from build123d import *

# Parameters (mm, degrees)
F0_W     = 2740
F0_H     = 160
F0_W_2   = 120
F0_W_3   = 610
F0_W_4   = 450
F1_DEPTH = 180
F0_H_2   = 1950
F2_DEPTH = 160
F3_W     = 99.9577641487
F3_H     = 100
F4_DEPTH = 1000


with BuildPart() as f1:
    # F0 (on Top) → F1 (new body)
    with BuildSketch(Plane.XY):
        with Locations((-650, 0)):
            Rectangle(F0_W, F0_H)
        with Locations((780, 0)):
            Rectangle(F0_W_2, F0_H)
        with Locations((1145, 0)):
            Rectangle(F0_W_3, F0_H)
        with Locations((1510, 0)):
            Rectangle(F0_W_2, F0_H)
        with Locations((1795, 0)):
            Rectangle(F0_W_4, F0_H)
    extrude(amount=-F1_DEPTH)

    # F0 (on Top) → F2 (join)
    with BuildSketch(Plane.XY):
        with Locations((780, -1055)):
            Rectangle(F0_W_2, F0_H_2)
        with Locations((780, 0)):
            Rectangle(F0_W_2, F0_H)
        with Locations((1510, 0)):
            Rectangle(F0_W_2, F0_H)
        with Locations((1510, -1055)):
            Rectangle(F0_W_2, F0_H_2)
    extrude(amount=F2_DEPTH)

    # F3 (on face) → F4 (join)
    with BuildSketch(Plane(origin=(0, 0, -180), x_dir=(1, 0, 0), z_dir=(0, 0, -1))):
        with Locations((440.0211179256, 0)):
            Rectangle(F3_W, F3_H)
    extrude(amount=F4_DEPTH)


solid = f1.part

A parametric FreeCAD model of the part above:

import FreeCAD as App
import Part
import Sketcher

V = App.Vector
Q = App.Units.Quantity


def add_polygon(sketch, points):
    """Adds a closed chain of lines whose ends are joined by coincident constraints."""
    first, n = sketch.GeometryCount, len(points)
    for a, b in zip(points, points[1:] + points[:1]):
        sketch.addGeometry(Part.LineSegment(App.Vector(*a, 0), App.Vector(*b, 0)), False)
    for i in range(n):
        sketch.addConstraint(Sketcher.Constraint("Coincident", first + i, 2, first + (i + 1) % n, 1))

doc = App.newDocument("Part")
body = doc.addObject("PartDesign::Body", "Body")

# Sketch on XY plane
sketch1 = body.newObject("Sketcher::SketchObject", "Sketch")
sketch1.AttachmentSupport = (doc.getObject("XY_Plane"), [""])
sketch1.MapMode = "FlatFace"
add_polygon(sketch1, [(-2020, 80), (-2020, -80), (2020, -80), (2020, 80)])  # lines 0-3
sketch1.addConstraint([
    Sketcher.Constraint("Vertical", 0),
    Sketcher.Constraint("Horizontal", 1),
    Sketcher.Constraint("Vertical", 2),
    Sketcher.Constraint("Horizontal", 3),
    Sketcher.Constraint("Symmetric", 0, 2, 2, 2, -1, 1),
    Sketcher.Constraint("DistanceX", 1, 1, 1, 2, Q("4040 mm")),
    Sketcher.Constraint("DistanceY", 0, 2, 0, 1, Q("160 mm")),
])
pad1 = body.newObject("PartDesign::Pad", "Pad")
pad1.Profile = sketch1
pad1.Length = 180
pad1.Reversed = True

# Sketch on XY plane
sketch2 = body.newObject("Sketcher::SketchObject", "Sketch001")
sketch2.AttachmentSupport = (doc.getObject("XY_Plane"), [""])
sketch2.MapMode = "FlatFace"
add_polygon(sketch2, [(720, -2030), (840, -2030), (840, 80), (720, 80)])  # lines 0-3
add_polygon(sketch2, [(1450, 80), (1450, -2030), (1570, -2030), (1570, 80)])  # lines 4-7
sketch2.addConstraint([
    Sketcher.Constraint("Horizontal", 0),
    Sketcher.Constraint("Vertical", 1),
    Sketcher.Constraint("Horizontal", 2),
    Sketcher.Constraint("Vertical", 3),
    Sketcher.Constraint("Vertical", 4),
    Sketcher.Constraint("Horizontal", 5),
    Sketcher.Constraint("Vertical", 6),
    Sketcher.Constraint("Horizontal", 7),
    Sketcher.Constraint("Horizontal", 3, 2, 4, 2),
    Sketcher.Constraint("Horizontal", 2, 2, 6, 2),
    Sketcher.Constraint("Equal", 2, 5),
    Sketcher.Constraint("DistanceX", 0, 1, 0, 2, Q("120 mm")),
    Sketcher.Constraint("DistanceY", 1, 1, 1, 2, Q("2110 mm")),
    Sketcher.Constraint("DistanceX", -1, 1, 0, 2, Q("840 mm")),
    Sketcher.Constraint("DistanceY", 0, 2, -1, 1, Q("2030 mm")),
    Sketcher.Constraint("DistanceX", -1, 1, 4, 2, Q("1450 mm")),
])
pad2 = body.newObject("PartDesign::Pad", "Pad001")
pad2.Profile = sketch2
pad2.Length = 160

# Sketch on XY plane
sketch3 = body.newObject("Sketcher::SketchObject", "Sketch002")
sketch3.AttachmentSupport = (doc.getObject("XY_Plane"), [""])
sketch3.MapMode = "FlatFace"
sketch3.AttachmentOffset = App.Placement(V(0, 0, -180), App.Rotation())
add_polygon(sketch3, [(390.042236, -50), (390.042236, 50), (490, 50), (490, -50)])  # lines 0-3
sketch3.addConstraint([
    Sketcher.Constraint("Vertical", 0),
    Sketcher.Constraint("Horizontal", 1),
    Sketcher.Constraint("Vertical", 2),
    Sketcher.Constraint("Horizontal", 3),
    Sketcher.Constraint("DistanceY", 0, 1, 0, 2, Q("100 mm")),
    Sketcher.Constraint("DistanceY", -1, 1, 0, 2, Q("50 mm")),
    Sketcher.Constraint("DistanceX", -1, 1, 1, 2, Q("490 mm")),
    Sketcher.Constraint("DistanceX", 1, 1, 1, 2, Q("99.957764 mm")),
])
pad3 = body.newObject("PartDesign::Pad", "Pad002")
pad3.Profile = sketch3
pad3.Length = 1000
pad3.Reversed = True

doc.recompute()
